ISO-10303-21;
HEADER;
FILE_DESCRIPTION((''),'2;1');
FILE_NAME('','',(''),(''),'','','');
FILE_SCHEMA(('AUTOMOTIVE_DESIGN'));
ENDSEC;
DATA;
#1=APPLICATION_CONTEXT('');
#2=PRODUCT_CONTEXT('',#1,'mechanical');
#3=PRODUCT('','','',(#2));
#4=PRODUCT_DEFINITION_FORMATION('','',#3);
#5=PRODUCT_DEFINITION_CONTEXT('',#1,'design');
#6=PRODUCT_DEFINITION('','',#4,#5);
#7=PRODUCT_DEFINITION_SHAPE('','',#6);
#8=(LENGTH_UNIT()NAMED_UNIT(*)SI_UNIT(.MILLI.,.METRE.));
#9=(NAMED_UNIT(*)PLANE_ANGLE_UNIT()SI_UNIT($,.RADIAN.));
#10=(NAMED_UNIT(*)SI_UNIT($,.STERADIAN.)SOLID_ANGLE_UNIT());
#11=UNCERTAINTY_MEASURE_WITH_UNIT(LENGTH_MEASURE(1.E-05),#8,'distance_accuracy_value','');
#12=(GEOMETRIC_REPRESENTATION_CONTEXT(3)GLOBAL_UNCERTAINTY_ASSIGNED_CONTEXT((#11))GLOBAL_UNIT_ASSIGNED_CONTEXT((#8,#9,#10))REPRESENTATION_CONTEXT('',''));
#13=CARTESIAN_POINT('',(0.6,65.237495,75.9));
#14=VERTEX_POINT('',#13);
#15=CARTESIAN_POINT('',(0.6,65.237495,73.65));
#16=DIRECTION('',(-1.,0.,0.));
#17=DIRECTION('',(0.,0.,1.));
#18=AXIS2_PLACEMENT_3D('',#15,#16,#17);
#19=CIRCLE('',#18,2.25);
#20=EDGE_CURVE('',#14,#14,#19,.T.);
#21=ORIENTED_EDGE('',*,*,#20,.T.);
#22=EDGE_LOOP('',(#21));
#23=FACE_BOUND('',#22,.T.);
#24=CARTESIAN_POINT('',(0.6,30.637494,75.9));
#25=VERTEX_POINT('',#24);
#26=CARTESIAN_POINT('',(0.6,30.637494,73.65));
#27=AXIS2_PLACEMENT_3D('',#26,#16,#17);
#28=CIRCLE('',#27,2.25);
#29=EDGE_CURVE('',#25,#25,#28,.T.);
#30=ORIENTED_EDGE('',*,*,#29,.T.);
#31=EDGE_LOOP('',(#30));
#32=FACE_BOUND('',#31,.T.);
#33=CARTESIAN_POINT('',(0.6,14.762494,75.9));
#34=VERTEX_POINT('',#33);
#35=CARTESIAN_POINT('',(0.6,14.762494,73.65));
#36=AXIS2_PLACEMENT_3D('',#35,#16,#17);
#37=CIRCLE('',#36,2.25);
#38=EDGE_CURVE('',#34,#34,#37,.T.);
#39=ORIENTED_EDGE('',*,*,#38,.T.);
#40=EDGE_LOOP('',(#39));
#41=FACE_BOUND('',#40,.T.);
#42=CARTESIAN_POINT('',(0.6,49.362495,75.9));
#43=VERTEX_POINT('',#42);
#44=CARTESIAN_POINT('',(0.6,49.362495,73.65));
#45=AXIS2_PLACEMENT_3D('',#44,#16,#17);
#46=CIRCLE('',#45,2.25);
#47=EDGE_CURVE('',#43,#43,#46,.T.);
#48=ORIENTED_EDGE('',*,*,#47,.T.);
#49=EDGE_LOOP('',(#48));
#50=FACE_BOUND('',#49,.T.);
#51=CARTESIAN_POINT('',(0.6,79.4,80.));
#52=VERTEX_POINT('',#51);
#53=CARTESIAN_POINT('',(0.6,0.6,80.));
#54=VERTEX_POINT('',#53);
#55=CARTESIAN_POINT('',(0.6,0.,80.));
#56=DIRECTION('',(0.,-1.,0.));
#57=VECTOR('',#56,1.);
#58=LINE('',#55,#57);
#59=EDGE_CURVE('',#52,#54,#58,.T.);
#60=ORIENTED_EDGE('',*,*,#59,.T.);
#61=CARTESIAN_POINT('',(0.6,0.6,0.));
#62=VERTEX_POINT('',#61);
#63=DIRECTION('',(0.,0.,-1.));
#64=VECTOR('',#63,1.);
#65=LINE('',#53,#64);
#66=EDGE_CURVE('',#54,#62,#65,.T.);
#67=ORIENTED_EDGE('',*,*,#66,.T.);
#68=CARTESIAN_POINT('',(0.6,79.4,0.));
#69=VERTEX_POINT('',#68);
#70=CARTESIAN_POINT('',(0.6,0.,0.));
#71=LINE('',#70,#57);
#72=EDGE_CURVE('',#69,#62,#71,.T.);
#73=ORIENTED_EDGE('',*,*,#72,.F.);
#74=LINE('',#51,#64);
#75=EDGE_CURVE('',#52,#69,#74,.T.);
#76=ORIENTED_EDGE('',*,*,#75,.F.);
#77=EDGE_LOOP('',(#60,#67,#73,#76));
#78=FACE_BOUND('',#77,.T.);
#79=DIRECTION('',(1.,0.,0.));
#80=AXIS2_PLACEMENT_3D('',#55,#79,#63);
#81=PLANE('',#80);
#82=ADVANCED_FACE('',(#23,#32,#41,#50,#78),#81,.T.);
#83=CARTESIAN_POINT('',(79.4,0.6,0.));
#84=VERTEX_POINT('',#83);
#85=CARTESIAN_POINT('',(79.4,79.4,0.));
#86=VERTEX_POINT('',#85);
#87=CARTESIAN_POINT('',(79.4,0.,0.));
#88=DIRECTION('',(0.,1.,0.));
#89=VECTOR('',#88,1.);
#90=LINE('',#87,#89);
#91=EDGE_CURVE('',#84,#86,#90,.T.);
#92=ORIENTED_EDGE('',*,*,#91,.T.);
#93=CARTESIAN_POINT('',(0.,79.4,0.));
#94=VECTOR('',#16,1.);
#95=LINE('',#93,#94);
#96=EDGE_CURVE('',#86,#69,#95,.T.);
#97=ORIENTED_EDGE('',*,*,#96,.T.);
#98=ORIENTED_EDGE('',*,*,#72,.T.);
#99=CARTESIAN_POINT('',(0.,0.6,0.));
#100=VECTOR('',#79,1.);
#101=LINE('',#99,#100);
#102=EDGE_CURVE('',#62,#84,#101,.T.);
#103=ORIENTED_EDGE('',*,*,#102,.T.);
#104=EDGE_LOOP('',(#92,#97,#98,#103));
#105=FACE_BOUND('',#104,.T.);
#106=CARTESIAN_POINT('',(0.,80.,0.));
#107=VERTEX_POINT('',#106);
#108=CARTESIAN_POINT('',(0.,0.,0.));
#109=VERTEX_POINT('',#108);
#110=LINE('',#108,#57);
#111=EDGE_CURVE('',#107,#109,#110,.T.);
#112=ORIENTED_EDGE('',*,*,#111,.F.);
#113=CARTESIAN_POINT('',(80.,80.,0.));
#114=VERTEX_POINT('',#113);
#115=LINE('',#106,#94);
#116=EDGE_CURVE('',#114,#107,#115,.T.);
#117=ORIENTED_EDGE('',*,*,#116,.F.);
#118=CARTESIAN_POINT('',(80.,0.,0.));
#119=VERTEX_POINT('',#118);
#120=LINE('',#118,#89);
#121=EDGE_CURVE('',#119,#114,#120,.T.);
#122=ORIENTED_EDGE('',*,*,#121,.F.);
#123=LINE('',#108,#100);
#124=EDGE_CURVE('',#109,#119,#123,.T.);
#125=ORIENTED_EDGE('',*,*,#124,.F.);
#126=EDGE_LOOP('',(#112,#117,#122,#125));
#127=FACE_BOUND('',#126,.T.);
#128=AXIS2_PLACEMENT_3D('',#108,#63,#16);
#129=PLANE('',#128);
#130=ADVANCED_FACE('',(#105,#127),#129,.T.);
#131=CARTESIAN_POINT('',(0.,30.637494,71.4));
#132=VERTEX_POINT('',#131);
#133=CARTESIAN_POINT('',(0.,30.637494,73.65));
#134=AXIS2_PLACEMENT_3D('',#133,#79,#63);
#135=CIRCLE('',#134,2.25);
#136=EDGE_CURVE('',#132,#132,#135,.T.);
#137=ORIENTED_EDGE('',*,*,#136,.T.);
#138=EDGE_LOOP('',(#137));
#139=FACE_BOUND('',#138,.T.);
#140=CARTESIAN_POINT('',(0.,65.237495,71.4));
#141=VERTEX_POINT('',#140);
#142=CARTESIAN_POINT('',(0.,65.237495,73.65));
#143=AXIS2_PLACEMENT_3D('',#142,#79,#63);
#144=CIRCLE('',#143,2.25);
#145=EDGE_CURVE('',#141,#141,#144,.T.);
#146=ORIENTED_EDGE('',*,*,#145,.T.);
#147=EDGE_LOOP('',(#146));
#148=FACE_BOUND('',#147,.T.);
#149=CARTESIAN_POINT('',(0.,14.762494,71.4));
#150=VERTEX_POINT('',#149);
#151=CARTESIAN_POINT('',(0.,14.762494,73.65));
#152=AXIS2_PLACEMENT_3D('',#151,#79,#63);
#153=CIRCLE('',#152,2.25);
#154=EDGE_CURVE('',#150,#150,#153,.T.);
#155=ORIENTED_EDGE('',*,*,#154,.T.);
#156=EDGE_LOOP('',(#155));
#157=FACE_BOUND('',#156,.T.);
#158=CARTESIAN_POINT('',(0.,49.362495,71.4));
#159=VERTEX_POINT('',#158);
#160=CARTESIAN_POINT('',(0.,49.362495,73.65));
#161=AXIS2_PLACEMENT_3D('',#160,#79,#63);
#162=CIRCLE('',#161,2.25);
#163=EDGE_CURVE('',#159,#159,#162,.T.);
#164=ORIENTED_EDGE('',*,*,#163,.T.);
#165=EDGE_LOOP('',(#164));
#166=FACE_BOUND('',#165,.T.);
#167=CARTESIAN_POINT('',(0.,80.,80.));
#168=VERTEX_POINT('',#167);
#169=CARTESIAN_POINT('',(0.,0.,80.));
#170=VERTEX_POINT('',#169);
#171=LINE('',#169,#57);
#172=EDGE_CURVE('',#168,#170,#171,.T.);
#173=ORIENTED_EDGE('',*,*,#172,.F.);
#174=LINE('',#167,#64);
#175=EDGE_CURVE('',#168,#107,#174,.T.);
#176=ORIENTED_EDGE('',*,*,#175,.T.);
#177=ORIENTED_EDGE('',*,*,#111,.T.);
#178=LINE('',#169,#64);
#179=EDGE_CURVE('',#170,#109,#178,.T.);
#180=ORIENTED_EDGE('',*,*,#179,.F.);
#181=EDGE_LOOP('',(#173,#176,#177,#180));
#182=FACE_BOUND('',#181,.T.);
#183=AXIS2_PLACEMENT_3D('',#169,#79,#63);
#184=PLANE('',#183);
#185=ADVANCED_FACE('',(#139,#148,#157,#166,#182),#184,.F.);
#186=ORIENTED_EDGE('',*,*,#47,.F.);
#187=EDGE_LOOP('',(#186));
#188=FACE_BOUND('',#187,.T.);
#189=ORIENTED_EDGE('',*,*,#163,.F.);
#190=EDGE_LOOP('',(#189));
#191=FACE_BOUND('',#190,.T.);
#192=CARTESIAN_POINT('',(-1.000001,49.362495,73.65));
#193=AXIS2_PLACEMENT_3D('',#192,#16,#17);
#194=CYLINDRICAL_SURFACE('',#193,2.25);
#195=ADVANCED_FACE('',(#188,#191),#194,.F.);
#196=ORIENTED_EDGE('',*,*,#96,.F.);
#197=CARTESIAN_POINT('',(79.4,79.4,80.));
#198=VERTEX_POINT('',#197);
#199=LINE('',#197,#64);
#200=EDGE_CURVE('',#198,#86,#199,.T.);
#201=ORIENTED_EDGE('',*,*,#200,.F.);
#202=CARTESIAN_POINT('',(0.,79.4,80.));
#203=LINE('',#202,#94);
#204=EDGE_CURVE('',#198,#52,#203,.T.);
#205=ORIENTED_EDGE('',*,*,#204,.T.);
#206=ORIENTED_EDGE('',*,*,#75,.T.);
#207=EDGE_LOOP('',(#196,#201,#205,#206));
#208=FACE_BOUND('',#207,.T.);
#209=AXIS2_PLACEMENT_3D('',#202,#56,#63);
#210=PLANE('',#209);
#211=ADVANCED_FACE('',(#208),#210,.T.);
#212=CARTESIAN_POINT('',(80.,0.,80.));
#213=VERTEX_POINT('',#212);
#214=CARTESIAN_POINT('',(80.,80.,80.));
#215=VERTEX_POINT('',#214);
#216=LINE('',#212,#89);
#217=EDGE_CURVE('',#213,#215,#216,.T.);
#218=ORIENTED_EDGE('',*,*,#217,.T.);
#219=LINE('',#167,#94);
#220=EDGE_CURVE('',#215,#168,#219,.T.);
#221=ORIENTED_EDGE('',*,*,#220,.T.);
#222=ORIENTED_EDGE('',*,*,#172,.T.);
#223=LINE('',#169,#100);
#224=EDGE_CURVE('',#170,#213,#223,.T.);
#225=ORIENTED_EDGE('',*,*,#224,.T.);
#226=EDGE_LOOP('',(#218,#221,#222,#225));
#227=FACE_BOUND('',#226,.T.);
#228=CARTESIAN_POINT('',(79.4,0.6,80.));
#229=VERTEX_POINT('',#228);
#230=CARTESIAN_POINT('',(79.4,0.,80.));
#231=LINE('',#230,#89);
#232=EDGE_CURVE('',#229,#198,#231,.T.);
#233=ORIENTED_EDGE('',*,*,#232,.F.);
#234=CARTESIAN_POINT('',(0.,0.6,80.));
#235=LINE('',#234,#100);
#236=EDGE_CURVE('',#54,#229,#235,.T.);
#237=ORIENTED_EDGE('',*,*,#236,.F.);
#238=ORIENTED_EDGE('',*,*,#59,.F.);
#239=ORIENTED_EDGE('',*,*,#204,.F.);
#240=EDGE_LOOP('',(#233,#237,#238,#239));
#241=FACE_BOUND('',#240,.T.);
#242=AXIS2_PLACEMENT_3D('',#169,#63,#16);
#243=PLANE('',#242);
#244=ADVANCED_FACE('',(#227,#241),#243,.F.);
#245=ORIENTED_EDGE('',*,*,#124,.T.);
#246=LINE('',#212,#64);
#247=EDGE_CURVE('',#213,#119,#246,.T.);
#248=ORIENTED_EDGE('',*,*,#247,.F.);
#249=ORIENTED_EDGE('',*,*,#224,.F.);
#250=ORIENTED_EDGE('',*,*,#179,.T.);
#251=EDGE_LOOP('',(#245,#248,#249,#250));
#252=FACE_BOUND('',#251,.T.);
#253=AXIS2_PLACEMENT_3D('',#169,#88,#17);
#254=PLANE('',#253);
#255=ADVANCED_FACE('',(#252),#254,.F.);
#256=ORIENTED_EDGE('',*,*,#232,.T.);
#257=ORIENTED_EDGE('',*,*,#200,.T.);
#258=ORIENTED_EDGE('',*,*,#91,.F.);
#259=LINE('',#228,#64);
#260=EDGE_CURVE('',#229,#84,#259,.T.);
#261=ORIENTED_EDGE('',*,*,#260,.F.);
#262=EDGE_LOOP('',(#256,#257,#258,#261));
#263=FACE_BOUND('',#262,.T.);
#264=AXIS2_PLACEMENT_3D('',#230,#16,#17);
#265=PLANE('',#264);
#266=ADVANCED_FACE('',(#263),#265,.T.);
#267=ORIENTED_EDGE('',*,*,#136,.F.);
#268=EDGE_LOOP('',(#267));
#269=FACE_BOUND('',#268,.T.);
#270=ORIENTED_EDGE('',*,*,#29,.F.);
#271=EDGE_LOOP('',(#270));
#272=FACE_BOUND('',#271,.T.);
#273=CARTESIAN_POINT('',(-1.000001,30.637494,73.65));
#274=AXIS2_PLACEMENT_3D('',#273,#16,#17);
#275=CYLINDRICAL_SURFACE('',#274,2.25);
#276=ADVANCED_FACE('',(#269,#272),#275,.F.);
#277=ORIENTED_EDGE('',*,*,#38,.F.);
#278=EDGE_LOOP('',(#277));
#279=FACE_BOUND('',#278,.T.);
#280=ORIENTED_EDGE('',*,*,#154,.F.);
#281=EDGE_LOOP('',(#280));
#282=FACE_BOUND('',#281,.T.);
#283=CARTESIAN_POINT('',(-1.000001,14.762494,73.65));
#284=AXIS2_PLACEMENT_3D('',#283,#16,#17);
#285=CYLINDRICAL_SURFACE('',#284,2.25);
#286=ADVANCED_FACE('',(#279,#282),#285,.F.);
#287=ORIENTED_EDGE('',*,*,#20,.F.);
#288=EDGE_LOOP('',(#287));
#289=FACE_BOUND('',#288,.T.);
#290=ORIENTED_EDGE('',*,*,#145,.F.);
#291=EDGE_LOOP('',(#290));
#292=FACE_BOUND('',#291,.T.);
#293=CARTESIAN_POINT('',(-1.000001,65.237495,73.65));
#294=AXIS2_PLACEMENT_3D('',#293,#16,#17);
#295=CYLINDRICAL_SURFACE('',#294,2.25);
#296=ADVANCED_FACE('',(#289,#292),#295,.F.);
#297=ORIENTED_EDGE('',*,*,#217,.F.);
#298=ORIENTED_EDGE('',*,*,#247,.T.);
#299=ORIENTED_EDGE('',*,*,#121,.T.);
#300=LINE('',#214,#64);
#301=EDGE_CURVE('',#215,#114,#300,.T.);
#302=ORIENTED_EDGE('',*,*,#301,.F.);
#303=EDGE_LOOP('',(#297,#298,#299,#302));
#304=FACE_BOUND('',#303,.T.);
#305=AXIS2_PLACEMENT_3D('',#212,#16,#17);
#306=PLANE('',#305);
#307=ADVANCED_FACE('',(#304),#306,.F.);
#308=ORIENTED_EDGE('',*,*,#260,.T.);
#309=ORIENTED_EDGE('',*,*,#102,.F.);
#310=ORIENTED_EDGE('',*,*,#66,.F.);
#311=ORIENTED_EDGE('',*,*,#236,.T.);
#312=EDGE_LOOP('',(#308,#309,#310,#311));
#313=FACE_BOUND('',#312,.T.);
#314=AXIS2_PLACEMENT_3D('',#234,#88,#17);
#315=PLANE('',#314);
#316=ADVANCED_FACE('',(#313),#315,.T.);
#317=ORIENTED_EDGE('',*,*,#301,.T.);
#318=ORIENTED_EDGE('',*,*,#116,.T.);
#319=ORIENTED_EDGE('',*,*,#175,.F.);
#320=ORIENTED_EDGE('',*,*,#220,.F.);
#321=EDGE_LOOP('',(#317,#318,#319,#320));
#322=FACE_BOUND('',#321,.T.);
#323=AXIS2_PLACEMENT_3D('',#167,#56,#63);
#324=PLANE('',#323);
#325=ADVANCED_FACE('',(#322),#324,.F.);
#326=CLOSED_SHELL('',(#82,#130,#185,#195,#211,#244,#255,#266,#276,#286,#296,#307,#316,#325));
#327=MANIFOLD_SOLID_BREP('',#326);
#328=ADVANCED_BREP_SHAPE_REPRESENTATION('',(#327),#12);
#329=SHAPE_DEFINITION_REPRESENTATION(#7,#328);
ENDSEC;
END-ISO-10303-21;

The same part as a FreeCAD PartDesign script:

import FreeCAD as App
import Part
import Sketcher

V = App.Vector


def faces_at(feature, points):
    """Names of the faces that lie closest to the given points."""
    faces = feature.Shape.Faces
    near = lambda p: min(range(len(faces)), key=lambda i: faces[i].distToShape(Part.Vertex(*p))[0])
    return sorted({f"Face{near(p) + 1}" for p in points})


def add_polygon(sketch, points):
    """Adds a closed chain of lines whose ends are joined by coincident constraints."""
    first, n = sketch.GeometryCount, len(points)
    for a, b in zip(points, points[1:] + points[:1]):
        sketch.addGeometry(Part.LineSegment(App.Vector(*a, 0), App.Vector(*b, 0)), False)
    for i in range(n):
        sketch.addConstraint(Sketcher.Constraint("Coincident", first + i, 2, first + (i + 1) % n, 1))

doc = App.newDocument("Part")
body = doc.addObject("PartDesign::Body", "Body")

# Sketch on XY plane
sketch1 = body.newObject("Sketcher::SketchObject", "Sketch")
sketch1.AttachmentSupport = (doc.getObject("XY_Plane"), [""])
sketch1.MapMode = "FlatFace"
add_polygon(sketch1, [(0, 80), (0, 0), (80, 0), (80, 80)])  # lines 0-3
sketch1.addConstraint(Sketcher.Constraint("Vertical", 0))
sketch1.addConstraint(Sketcher.Constraint("Horizontal", 1))
sketch1.addConstraint(Sketcher.Constraint("Vertical", 2))
sketch1.addConstraint(Sketcher.Constraint("Horizontal", 3))
sketch1.addConstraint(Sketcher.Constraint("Coincident", 0, 2, -1, 1))
sketch1.addConstraint(Sketcher.Constraint("Equal", 3, 0))
sketch1.addConstraint(Sketcher.Constraint("DistanceX", 1, 1, 1, 2, 80.0))
pad1 = body.newObject("PartDesign::Pad", "Pad")
pad1.Profile = sketch1
pad1.Length = 80
doc.recompute()

thickness = body.newObject("PartDesign::Thickness", "Thickness")
thickness.Base = (pad1, faces_at(pad1, [(40, 40, 80), (40, 40, 0)]))
thickness.Value = 0.6
thickness.Reversed = True
thickness.Join = "Intersection"

# Sketch on YZ plane
sketch2 = body.newObject("Sketcher::SketchObject", "Sketch001")
sketch2.AttachmentSupport = (doc.getObject("YZ_Plane"), [""])
sketch2.MapMode = "FlatFace"
sketch2.AttachmentOffset = App.Placement(V(0, 0, -1.000001), App.Rotation())
sketch2.addGeometry(Part.Circle(V(14.8, 73.7, 0), V(0, 0, 1), 2.2), False)
sketch2.addConstraint(Sketcher.Constraint("Diameter", 0, 4.5))
sketch2.addConstraint(Sketcher.Constraint("DistanceY", -1, 1, 0, 3, 73.65))
sketch2.addConstraint(Sketcher.Constraint("DistanceX", -1, 1, 0, 3, 14.762494))
pocket1 = body.newObject("PartDesign::Pocket", "Pocket")
pocket1.Profile = sketch2
pocket1.Length = 1.600001
pocket1.Reversed = True

# Sketch on YZ plane
sketch3 = body.newObject("Sketcher::SketchObject", "Sketch002")
sketch3.AttachmentSupport = (doc.getObject("YZ_Plane"), [""])
sketch3.MapMode = "FlatFace"
sketch3.AttachmentOffset = App.Placement(V(0, 0, -1.000001), App.Rotation())
sketch3.addGeometry(Part.Circle(V(30.6, 73.7, 0), V(0, 0, 1), 2.2), False)
sketch3.addConstraint(Sketcher.Constraint("Diameter", 0, 4.5))
sketch3.addConstraint(Sketcher.Constraint("DistanceY", -1, 1, 0, 3, 73.65))
sketch3.addConstraint(Sketcher.Constraint("DistanceX", -1, 1, 0, 3, 30.637494))
pocket2 = body.newObject("PartDesign::Pocket", "Pocket001")
pocket2.Profile = sketch3
pocket2.Length = 1.600001
pocket2.Reversed = True

# Sketch on YZ plane
sketch4 = body.newObject("Sketcher::SketchObject", "Sketch003")
sketch4.AttachmentSupport = (doc.getObject("YZ_Plane"), [""])
sketch4.MapMode = "FlatFace"
sketch4.AttachmentOffset = App.Placement(V(0, 0, -1.000001), App.Rotation())
sketch4.addGeometry(Part.Circle(V(49.4, 73.7, 0), V(0, 0, 1), 2.2), False)
sketch4.addConstraint(Sketcher.Constraint("Diameter", 0, 4.5))
sketch4.addConstraint(Sketcher.Constraint("DistanceY", -1, 1, 0, 3, 73.65))
sketch4.addConstraint(Sketcher.Constraint("DistanceX", -1, 1, 0, 3, 49.362495))
pocket3 = body.newObject("PartDesign::Pocket", "Pocket002")
pocket3.Profile = sketch4
pocket3.Length = 1.600001
pocket3.Reversed = True

# Sketch on YZ plane
sketch5 = body.newObject("Sketcher::SketchObject", "Sketch004")
sketch5.AttachmentSupport = (doc.getObject("YZ_Plane"), [""])
sketch5.MapMode = "FlatFace"
sketch5.AttachmentOffset = App.Placement(V(0, 0, -1.000001), App.Rotation())
sketch5.addGeometry(Part.Circle(V(65.2, 73.7, 0), V(0, 0, 1), 2.2), False)
sketch5.addConstraint(Sketcher.Constraint("Diameter", 0, 4.5))
sketch5.addConstraint(Sketcher.Constraint("DistanceY", -1, 1, 0, 3, 73.65))
sketch5.addConstraint(Sketcher.Constraint("DistanceX", -1, 1, 0, 3, 65.237495))
pocket4 = body.newObject("PartDesign::Pocket", "Pocket003")
pocket4.Profile = sketch5
pocket4.Length = 1.600001
pocket4.Reversed = True

doc.recompute()
